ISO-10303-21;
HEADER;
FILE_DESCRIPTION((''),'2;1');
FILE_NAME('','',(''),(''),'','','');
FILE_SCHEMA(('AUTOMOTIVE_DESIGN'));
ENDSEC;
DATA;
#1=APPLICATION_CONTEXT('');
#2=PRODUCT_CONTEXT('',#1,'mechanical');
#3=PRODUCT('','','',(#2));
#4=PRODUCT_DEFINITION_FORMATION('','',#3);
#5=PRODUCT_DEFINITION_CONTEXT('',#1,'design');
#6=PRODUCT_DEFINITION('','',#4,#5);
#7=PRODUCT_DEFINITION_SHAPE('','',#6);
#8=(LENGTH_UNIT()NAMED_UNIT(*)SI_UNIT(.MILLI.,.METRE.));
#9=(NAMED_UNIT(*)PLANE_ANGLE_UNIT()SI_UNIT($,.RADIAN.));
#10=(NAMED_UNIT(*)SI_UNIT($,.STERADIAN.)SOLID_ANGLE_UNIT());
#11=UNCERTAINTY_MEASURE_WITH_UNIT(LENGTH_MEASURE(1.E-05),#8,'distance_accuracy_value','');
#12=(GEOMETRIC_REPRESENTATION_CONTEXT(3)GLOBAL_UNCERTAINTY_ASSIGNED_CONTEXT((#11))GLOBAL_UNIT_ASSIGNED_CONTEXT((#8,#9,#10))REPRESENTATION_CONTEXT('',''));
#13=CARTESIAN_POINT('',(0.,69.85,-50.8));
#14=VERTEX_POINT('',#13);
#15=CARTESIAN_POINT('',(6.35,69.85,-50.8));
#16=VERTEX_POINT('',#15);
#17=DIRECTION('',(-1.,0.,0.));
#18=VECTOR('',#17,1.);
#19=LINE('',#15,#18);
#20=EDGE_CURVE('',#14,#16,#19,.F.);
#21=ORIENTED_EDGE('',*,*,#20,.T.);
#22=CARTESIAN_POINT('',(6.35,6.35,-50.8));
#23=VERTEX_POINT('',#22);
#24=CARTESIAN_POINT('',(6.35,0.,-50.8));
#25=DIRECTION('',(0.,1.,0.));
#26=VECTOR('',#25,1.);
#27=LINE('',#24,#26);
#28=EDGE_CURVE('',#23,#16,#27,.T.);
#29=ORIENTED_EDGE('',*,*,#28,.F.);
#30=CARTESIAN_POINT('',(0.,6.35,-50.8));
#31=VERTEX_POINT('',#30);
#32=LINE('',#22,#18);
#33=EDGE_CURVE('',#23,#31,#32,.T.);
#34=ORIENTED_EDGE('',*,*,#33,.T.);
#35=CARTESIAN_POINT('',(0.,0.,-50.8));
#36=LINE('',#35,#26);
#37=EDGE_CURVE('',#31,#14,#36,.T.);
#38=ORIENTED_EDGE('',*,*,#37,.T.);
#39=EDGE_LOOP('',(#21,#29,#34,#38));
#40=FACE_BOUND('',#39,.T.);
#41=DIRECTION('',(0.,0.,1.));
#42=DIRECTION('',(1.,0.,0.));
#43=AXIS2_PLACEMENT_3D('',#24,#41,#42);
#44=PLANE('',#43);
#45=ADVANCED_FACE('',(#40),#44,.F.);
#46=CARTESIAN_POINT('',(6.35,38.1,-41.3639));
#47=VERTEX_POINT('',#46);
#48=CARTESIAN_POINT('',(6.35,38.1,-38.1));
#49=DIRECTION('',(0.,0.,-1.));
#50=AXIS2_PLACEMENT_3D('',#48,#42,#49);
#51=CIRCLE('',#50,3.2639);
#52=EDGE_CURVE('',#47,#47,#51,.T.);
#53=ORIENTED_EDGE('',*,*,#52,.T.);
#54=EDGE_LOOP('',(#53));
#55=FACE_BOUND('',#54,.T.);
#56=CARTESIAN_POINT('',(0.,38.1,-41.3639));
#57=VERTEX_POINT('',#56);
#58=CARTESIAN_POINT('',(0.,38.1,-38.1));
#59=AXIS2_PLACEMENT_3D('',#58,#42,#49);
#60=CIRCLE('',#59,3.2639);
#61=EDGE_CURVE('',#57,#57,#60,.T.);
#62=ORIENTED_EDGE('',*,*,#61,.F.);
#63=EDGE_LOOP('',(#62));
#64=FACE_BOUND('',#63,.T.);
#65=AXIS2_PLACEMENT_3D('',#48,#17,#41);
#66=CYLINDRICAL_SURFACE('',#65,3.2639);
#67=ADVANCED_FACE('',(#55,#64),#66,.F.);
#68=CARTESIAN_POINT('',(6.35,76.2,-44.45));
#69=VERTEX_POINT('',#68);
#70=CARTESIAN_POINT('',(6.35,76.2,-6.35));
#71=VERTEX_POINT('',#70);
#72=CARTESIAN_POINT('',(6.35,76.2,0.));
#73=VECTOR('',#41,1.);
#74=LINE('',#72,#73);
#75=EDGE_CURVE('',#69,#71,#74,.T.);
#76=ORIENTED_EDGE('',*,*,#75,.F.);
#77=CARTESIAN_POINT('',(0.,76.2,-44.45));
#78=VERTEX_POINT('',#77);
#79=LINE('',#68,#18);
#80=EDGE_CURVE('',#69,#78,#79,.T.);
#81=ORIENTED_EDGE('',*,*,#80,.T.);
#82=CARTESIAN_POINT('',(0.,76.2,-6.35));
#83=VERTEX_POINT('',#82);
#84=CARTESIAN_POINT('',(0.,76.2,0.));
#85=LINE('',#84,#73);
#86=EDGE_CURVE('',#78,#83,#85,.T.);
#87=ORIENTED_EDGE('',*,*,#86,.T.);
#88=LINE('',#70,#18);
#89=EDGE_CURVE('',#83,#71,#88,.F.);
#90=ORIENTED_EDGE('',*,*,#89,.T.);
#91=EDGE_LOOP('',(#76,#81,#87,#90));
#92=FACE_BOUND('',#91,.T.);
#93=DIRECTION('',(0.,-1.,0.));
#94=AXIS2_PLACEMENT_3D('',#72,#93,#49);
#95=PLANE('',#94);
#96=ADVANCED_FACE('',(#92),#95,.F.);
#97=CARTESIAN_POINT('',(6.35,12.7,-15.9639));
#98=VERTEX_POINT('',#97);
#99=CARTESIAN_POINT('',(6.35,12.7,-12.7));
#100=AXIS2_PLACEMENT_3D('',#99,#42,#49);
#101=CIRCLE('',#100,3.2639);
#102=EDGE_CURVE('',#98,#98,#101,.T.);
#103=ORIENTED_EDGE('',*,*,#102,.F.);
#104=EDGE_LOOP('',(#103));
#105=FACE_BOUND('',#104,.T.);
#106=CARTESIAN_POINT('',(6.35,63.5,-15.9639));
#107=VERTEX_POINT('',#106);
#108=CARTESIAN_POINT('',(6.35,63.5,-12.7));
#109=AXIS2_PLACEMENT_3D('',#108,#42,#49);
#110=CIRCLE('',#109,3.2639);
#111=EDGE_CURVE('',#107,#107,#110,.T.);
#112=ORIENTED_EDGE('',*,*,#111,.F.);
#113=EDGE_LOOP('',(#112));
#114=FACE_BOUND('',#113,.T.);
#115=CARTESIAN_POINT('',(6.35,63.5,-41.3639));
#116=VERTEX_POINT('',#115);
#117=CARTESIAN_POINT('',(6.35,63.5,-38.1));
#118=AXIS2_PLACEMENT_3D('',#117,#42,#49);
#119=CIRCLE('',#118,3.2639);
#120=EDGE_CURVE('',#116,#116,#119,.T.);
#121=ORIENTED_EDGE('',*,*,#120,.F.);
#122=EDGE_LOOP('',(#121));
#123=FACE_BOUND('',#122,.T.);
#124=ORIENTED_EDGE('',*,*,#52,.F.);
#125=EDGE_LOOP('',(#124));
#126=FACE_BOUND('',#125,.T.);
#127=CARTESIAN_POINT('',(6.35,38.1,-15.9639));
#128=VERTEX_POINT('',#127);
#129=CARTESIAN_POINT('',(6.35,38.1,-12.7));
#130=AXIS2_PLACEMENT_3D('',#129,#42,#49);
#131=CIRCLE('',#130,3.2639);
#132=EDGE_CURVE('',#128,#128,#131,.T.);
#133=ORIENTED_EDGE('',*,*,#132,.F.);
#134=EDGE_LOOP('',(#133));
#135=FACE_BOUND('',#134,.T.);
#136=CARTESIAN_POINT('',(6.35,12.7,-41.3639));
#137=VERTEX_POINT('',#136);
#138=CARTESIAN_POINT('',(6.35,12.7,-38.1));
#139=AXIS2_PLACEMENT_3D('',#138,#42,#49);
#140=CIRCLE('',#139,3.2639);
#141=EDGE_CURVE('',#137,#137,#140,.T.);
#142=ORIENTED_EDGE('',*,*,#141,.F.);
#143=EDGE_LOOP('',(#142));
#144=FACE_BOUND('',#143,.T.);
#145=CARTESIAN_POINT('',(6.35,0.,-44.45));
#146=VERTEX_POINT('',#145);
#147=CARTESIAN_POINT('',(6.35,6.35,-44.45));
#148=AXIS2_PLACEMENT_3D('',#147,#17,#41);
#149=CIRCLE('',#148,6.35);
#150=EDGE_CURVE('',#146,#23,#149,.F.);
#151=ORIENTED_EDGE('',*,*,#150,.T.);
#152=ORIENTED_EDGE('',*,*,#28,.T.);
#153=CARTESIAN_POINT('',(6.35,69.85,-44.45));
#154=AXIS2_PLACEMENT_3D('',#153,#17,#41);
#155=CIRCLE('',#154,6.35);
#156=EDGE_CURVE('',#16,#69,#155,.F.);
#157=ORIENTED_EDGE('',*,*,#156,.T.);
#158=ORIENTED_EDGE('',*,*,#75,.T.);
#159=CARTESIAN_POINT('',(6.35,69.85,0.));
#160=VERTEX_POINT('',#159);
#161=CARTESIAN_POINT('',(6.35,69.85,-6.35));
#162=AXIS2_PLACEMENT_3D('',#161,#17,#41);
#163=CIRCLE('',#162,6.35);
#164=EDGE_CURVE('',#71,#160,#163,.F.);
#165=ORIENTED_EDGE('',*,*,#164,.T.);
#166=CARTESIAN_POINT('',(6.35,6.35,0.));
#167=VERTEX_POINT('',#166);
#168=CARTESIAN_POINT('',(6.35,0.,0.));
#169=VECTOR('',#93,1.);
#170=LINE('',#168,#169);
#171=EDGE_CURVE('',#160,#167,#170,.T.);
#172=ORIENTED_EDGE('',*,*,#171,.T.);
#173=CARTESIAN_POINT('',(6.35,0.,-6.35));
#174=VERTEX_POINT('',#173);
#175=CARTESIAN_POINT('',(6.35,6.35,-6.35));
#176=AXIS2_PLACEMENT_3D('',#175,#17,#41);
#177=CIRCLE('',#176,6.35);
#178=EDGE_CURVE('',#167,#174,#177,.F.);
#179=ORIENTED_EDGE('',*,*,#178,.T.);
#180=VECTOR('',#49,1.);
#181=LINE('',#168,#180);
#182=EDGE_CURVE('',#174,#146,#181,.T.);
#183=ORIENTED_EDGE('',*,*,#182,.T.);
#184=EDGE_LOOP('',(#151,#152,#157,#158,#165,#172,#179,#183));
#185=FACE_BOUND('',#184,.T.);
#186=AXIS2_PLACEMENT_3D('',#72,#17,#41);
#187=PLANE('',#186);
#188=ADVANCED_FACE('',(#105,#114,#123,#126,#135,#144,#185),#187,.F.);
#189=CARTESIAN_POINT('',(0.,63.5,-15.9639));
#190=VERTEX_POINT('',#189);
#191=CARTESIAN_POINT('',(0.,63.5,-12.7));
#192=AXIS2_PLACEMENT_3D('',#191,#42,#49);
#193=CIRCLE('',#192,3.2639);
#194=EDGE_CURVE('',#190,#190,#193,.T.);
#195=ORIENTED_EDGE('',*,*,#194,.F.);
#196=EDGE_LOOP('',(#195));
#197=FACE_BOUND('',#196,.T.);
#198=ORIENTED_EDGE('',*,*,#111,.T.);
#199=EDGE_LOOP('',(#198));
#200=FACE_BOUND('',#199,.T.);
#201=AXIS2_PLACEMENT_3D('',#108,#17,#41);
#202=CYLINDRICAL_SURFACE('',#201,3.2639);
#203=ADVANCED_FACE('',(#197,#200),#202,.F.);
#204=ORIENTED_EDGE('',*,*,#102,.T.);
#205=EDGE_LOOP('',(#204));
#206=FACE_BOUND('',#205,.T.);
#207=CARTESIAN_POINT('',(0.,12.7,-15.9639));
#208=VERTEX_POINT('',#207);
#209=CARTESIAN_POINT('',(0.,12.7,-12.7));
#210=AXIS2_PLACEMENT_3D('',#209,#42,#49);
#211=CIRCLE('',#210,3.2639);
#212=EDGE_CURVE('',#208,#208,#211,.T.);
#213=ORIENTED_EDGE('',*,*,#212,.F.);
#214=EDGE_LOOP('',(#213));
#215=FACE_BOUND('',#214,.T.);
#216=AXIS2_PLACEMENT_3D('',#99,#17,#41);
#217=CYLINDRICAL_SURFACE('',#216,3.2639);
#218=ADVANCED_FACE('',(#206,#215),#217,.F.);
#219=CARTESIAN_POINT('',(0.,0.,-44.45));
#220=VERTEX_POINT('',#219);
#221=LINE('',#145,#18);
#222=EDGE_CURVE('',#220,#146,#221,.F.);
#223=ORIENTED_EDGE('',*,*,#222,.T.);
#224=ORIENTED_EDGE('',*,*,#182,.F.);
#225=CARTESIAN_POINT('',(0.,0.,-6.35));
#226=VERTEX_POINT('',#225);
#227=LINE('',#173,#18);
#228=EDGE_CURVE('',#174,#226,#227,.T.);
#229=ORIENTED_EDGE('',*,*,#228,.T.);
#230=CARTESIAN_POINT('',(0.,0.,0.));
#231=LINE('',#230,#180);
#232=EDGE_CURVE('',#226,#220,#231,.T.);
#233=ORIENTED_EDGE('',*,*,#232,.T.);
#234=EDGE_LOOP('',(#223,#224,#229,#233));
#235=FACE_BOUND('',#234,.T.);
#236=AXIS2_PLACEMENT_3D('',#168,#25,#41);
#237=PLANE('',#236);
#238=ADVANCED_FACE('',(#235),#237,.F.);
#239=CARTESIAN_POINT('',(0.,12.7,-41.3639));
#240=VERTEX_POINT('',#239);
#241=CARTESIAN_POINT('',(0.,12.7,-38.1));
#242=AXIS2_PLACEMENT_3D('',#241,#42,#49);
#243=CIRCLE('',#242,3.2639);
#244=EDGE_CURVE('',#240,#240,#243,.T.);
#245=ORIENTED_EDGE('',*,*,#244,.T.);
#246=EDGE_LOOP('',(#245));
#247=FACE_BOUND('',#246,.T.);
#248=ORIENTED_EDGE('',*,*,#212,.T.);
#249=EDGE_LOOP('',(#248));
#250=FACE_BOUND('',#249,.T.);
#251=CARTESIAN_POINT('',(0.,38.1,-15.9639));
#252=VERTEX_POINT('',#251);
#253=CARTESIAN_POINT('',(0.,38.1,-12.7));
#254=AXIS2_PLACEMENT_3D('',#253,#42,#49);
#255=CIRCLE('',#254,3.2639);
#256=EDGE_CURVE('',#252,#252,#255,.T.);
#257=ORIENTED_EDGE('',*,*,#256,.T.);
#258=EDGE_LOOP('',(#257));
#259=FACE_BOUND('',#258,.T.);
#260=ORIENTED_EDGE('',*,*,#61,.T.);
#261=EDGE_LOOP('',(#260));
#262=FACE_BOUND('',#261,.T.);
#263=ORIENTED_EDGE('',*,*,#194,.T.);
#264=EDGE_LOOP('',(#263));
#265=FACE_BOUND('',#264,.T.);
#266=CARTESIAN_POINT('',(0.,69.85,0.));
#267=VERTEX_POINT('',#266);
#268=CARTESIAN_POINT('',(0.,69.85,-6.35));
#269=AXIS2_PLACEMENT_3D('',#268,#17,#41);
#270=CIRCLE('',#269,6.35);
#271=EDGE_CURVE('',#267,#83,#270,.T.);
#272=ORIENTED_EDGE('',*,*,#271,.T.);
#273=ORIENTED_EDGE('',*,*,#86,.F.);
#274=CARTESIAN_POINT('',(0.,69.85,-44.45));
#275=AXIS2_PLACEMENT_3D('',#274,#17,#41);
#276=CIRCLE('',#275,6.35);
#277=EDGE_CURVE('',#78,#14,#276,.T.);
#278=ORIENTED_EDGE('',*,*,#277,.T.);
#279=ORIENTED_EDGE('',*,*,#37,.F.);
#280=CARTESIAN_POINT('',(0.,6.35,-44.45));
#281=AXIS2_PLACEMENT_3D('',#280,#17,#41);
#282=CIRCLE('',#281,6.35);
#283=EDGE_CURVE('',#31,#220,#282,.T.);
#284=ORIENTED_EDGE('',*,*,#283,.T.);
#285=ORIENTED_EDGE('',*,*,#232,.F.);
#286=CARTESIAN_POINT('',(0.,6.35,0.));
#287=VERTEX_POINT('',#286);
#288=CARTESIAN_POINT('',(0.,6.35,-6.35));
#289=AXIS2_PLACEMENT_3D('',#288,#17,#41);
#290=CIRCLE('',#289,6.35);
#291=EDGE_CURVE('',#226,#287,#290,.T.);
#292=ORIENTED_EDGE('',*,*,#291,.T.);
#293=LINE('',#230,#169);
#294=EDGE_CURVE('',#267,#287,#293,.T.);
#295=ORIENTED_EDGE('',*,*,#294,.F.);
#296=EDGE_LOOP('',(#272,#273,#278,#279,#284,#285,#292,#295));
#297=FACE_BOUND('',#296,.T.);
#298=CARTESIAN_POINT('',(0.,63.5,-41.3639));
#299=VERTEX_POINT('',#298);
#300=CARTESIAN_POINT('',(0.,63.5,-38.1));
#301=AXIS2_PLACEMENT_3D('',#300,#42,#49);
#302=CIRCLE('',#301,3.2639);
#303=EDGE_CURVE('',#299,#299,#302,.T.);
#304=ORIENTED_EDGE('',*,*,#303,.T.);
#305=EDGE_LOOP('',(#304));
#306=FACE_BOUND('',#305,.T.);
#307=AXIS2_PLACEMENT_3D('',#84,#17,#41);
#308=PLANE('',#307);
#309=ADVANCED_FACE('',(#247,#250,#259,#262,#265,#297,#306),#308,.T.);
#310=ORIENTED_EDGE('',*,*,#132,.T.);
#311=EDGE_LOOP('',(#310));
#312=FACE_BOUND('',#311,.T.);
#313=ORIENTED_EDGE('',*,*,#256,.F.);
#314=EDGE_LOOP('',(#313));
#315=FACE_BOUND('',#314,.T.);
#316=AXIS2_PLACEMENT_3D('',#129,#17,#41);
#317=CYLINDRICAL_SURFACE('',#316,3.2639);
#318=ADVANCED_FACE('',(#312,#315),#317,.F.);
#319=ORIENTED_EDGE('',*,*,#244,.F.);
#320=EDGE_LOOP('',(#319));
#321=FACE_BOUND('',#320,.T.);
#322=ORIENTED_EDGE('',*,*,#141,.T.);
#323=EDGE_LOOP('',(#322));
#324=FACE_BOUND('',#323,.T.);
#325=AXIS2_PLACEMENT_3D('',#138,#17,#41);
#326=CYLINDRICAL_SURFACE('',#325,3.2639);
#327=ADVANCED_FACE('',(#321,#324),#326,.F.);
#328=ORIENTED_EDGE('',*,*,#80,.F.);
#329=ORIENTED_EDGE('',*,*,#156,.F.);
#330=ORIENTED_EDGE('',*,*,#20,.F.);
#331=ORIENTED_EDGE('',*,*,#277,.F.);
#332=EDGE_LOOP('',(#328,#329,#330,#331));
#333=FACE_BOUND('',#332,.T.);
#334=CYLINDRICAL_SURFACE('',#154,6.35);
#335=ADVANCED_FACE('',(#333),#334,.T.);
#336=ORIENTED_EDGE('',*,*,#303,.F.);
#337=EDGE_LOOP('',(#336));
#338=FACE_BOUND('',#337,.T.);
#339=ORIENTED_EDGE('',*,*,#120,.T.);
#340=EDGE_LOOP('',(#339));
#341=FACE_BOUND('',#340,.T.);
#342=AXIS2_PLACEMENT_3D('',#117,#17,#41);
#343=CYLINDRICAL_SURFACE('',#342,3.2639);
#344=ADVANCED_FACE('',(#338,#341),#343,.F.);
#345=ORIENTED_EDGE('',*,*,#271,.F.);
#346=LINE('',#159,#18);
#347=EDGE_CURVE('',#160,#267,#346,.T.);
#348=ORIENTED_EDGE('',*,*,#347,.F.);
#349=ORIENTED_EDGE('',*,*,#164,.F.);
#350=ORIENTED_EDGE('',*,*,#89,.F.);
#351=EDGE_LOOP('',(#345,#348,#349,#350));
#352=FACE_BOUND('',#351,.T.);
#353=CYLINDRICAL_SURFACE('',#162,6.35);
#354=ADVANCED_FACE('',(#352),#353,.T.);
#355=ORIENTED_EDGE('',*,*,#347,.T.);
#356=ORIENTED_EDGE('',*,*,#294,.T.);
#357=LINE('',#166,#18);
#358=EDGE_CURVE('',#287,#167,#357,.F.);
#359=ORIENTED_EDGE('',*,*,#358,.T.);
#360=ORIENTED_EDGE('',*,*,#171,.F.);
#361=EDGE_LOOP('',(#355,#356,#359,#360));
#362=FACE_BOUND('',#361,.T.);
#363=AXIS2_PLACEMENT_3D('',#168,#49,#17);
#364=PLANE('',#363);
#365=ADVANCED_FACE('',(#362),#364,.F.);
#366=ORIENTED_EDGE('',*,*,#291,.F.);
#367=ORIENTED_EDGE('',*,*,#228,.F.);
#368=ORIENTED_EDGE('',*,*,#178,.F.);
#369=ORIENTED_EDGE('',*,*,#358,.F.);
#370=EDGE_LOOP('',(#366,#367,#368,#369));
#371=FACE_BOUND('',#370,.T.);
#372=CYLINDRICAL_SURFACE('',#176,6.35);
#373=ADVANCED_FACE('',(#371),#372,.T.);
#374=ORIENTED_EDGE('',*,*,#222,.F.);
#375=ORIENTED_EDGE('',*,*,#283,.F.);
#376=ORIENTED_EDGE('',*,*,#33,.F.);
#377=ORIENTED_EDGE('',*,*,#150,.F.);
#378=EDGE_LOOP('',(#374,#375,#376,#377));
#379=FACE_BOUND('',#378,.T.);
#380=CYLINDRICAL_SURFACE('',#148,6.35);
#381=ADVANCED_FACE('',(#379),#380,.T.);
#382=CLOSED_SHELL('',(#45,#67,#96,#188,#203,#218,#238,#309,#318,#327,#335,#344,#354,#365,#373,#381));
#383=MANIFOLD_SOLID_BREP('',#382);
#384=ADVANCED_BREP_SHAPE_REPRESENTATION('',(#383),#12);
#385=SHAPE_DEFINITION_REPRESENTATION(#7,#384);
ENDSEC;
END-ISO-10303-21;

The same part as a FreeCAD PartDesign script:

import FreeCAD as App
import Part
import Sketcher

V = App.Vector
Q = App.Units.Quantity


def edges_at(feature, points):
    """Names of the edges that pass closest to the given points."""
    edges = feature.Shape.Edges
    near = lambda p: min(range(len(edges)), key=lambda i: edges[i].distToShape(Part.Vertex(*p))[0])
    return sorted({f"Edge{near(p) + 1}" for p in points})

doc = App.newDocument("Part")
params = doc.addObject("Spreadsheet::Sheet", "Params")
for row, (alias, value) in enumerate([
    ("sketch1_width", "3 in"),
    ("sketch1_height", "2 in"),
    ("sketch1_diameter", "0.257 in"),
    ("pad1_length", "0.25 in"),
    ("fillet_radius", "0.25 in"),
], start=1):
    params.set(f"A{row}", alias)
    params.set(f"B{row}", "=" + value)
    params.setAlias(f"B{row}", alias)

body = doc.addObject("PartDesign::Body", "Body")

# Sketch on YZ plane
sketch1 = body.newObject("Sketcher::SketchObject", "Sketch")
sketch1.AttachmentSupport = (doc.getObject("YZ_Plane"), [""])
sketch1.MapMode = "FlatFace"
sketch1.addGeometry(Part.LineSegment(V(76.2, 0, 0), V(0, 0, 0)), False)
sketch1.addGeometry(Part.LineSegment(V(0, 0, 0), V(0, -50.8, 0)), False)
sketch1.addGeometry(Part.LineSegment(V(0, -50.8, 0), V(76.2, -50.8, 0)), False)
sketch1.addGeometry(Part.LineSegment(V(76.2, -50.8, 0), V(76.2, 0, 0)), False)
sketch1.addGeometry(Part.Circle(V(12.7, -12.7, 0), V(0, 0, 1), 3.3), False)
sketch1.addGeometry(Part.Circle(V(12.7, -38.1, 0), V(0, 0, 1), 3.3), False)
sketch1.addGeometry(Part.Circle(V(38.1, -12.7, 0), V(0, 0, 1), 3.3), False)
sketch1.addGeometry(Part.Circle(V(63.5, -12.7, 0), V(0, 0, 1), 3.3), False)
sketch1.addGeometry(Part.Circle(V(38.1, -38.1, 0), V(0, 0, 1), 3.3), False)
sketch1.addGeometry(Part.Circle(V(63.5, -38.1, 0), V(0, 0, 1), 3.3), False)
sketch1.addConstraint(Sketcher.Constraint("Coincident", 0, 2, 1, 1))
sketch1.addConstraint(Sketcher.Constraint("Coincident", 1, 2, 2, 1))
sketch1.addConstraint(Sketcher.Constraint("Coincident", 2, 2, 3, 1))
sketch1.addConstraint(Sketcher.Constraint("Coincident", 3, 2, 0, 1))
sketch1.addConstraint(Sketcher.Constraint("Horizontal", 0))
sketch1.addConstraint(Sketcher.Constraint("Vertical", 1))
sketch1.addConstraint(Sketcher.Constraint("Horizontal", 2))
sketch1.addConstraint(Sketcher.Constraint("Vertical", 3))
sketch1.addConstraint(Sketcher.Constraint("Coincident", 0, 2, -1, 1))
sketch1.addConstraint(Sketcher.Constraint("Equal", 4, 5))
sketch1.addConstraint(Sketcher.Constraint("Equal", 5, 6))
sketch1.addConstraint(Sketcher.Constraint("Equal", 6, 7))
sketch1.addConstraint(Sketcher.Constraint("Equal", 7, 8))
sketch1.addConstraint(Sketcher.Constraint("Equal", 8, 9))
sketch1.addConstraint(Sketcher.Constraint("Horizontal", 4, 3, 6, 3))
sketch1.addConstraint(Sketcher.Constraint("Horizontal", 6, 3, 7, 3))
sketch1.addConstraint(Sketcher.Constraint("Horizontal", 5, 3, 8, 3))
sketch1.addConstraint(Sketcher.Constraint("Horizontal", 8, 3, 9, 3))
sketch1.addConstraint(Sketcher.Constraint("Vertical", 4, 3, 5, 3))
sketch1.addConstraint(Sketcher.Constraint("Vertical", 6, 3, 8, 3))
sketch1.addConstraint(Sketcher.Constraint("Vertical", 7, 3, 9, 3))
sketch1.addConstraint(Sketcher.Constraint("DistanceX", 0, 2, 0, 1, Q("3 in")))
sketch1.addConstraint(Sketcher.Constraint("DistanceY", 1, 2, 1, 1, Q("2 in")))
sketch1.addConstraint(Sketcher.Constraint("Diameter", 4, Q("0.257 in")))
sketch1.addConstraint(Sketcher.Constraint("DistanceY", 5, 3, 4, 3, Q("1 in")))
sketch1.addConstraint(Sketcher.Constraint("DistanceX", 4, 3, 6, 3, Q("1 in")))
sketch1.addConstraint(Sketcher.Constraint("DistanceX", 6, 3, 7, 3, Q("1 in")))
sketch1.addConstraint(Sketcher.Constraint("DistanceX", -1, 1, 4, 3, Q("0.5 in")))
sketch1.addConstraint(Sketcher.Constraint("DistanceY", 4, 3, -1, 1, Q("0.5 in")))
sketch1.setExpression("Constraints[21]", "Params.sketch1_width")
sketch1.setExpression("Constraints[22]", "Params.sketch1_height")
sketch1.setExpression("Constraints[23]", "Params.sketch1_diameter")
pad1 = body.newObject("PartDesign::Pad", "Pad")
pad1.Profile = sketch1
pad1.setExpression("Length", "Params.pad1_length")
doc.recompute()

fillet = body.newObject("PartDesign::Fillet", "Fillet")
fillet.Base = (pad1, edges_at(pad1, [
    (3.175, 76.2, 0),
    (3.175, 76.2, -50.8),
    (3.175, 0, -50.8),
    (3.175, 0, 0),
]))
fillet.setExpression("Radius", "Params.fillet_radius")

doc.recompute()
